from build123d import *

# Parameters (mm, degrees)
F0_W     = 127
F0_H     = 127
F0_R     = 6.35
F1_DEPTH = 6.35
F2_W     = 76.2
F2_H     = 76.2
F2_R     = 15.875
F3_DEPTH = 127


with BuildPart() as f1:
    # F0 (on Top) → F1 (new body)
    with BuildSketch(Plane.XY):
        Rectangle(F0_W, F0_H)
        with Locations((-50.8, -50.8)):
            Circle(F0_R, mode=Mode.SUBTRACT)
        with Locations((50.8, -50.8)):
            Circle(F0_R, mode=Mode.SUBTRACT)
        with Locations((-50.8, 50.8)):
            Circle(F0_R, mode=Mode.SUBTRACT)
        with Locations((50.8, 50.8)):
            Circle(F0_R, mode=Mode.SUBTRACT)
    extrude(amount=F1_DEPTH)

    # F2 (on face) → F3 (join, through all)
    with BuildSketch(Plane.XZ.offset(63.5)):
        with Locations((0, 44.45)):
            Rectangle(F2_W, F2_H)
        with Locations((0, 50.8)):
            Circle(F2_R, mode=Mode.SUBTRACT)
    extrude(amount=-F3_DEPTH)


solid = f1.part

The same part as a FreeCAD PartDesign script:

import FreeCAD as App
import Part
import Sketcher
Q = App.Units.Quantity


def add_polygon(sketch, points):
    """Adds a closed chain of lines whose ends are joined by coincident constraints."""
    first, n = sketch.GeometryCount, len(points)
    for a, b in zip(points, points[1:] + points[:1]):
        sketch.addGeometry(Part.LineSegment(App.Vector(*a, 0), App.Vector(*b, 0)), False)
    for i in range(n):
        sketch.addConstraint(Sketcher.Constraint("Coincident", first + i, 2, first + (i + 1) % n, 1))

doc = App.newDocument("Part")
body = doc.addObject("PartDesign::Body", "Body")

# Sketch on XY plane
sketch1 = doc.addObject("Sketcher::SketchObject", "Sketch")
body.addObject(sketch1)
sketch1.AttachmentSupport = (doc.XY_Plane, [""])
sketch1.MapMode = "FlatFace"
add_polygon(sketch1, [(-64, 64), (-64, -64), (64, -64), (64, 64)])  # lines 0-3
sketch1.addGeometry(Part.Circle(App.Vector(-51, -51, 0), App.Vector(0, 0, 1), 6), False)  # 4
sketch1.addGeometry(Part.Circle(App.Vector(51, -51, 0), App.Vector(0, 0, 1), 6), False)  # 5
sketch1.addGeometry(Part.Circle(App.Vector(-51, 51, 0), App.Vector(0, 0, 1), 6), False)  # 6
sketch1.addGeometry(Part.Circle(App.Vector(51, 51, 0), App.Vector(0, 0, 1), 6), False)  # 7
sketch1.addConstraint(Sketcher.Constraint("Vertical", 0))
sketch1.addConstraint(Sketcher.Constraint("Horizontal", 1))
sketch1.addConstraint(Sketcher.Constraint("Vertical", 2))
sketch1.addConstraint(Sketcher.Constraint("Horizontal", 3))
sketch1.addConstraint(Sketcher.Constraint("Equal", 4, 5))
sketch1.addConstraint(Sketcher.Constraint("Equal", 5, 6))
sketch1.addConstraint(Sketcher.Constraint("Equal", 6, 7))
sketch1.addConstraint(Sketcher.Constraint("Symmetric", 5, 3, 6, 3, -1, 1))
sketch1.addConstraint(Sketcher.Constraint("Symmetric", 4, 3, 7, 3, -1, 1))
sketch1.addConstraint(Sketcher.Constraint("Symmetric", 0, 2, 2, 2, -1, 1))
sketch1.addConstraint(Sketcher.Constraint("Symmetric", 4, 3, 5, 3, -2))
sketch1.addConstraint(Sketcher.Constraint("Equal", 3, 0))
sketch1.addConstraint(Sketcher.Constraint("Diameter", 4, Q("0.5 in")))
sketch1.addConstraint(Sketcher.Constraint("DistanceX", 1, 1, 1, 2, Q("5 in")))
sketch1.addConstraint(Sketcher.Constraint("DistanceX", 4, 3, -1, 1, Q("2 in")))
sketch1.addConstraint(Sketcher.Constraint("DistanceY", 4, 3, -1, 1, Q("2 in")))
pad1 = doc.addObject("PartDesign::Pad", "Pad")
body.addObject(pad1)
pad1.Profile = sketch1
pad1.Length = Q("0.25 in")

# Sketch on XZ plane
sketch2 = doc.addObject("Sketcher::SketchObject", "Sketch001")
body.addObject(sketch2)
sketch2.AttachmentSupport = (doc.XZ_Plane, [""])
sketch2.MapMode = "FlatFace"
sketch2.AttachmentOffset = App.Placement(App.Vector(0, 0, 2.5 * 25.4), App.Rotation())
add_polygon(sketch2, [(-38, 83), (-38, 6), (38, 6), (38, 83)])  # lines 0-3
sketch2.addGeometry(Part.Circle(App.Vector(0, 51, 0), App.Vector(0, 0, 1), 16), False)  # 4
sketch2.addConstraint(Sketcher.Constraint("Vertical", 0))
sketch2.addConstraint(Sketcher.Constraint("Horizontal", 1))
sketch2.addConstraint(Sketcher.Constraint("Vertical", 2))
sketch2.addConstraint(Sketcher.Constraint("Horizontal", 3))
sketch2.addConstraint(Sketcher.Constraint("PointOnObject", 4, 3, -2))
sketch2.addConstraint(Sketcher.Constraint("Equal", 3, 0))
sketch2.addConstraint(Sketcher.Constraint("Diameter", 4, Q("1.25 in")))
sketch2.addConstraint(Sketcher.Constraint("DistanceX", 1, 1, 1, 2, Q("3 in")))
sketch2.addConstraint(Sketcher.Constraint("DistanceY", -1, 1, 4, 3, Q("2 in")))
sketch2.addConstraint(Sketcher.Constraint("DistanceX", 0, 2, -1, 1, Q("1.5 in")))
sketch2.addConstraint(Sketcher.Constraint("DistanceY", -1, 1, 0, 2, Q("0.25 in")))
pad2 = doc.addObject("PartDesign::Pad", "Pad001")
body.addObject(pad2)
pad2.Profile = sketch2
pad2.Length = Q("5 in")
pad2.Reversed = True

doc.recompute()
